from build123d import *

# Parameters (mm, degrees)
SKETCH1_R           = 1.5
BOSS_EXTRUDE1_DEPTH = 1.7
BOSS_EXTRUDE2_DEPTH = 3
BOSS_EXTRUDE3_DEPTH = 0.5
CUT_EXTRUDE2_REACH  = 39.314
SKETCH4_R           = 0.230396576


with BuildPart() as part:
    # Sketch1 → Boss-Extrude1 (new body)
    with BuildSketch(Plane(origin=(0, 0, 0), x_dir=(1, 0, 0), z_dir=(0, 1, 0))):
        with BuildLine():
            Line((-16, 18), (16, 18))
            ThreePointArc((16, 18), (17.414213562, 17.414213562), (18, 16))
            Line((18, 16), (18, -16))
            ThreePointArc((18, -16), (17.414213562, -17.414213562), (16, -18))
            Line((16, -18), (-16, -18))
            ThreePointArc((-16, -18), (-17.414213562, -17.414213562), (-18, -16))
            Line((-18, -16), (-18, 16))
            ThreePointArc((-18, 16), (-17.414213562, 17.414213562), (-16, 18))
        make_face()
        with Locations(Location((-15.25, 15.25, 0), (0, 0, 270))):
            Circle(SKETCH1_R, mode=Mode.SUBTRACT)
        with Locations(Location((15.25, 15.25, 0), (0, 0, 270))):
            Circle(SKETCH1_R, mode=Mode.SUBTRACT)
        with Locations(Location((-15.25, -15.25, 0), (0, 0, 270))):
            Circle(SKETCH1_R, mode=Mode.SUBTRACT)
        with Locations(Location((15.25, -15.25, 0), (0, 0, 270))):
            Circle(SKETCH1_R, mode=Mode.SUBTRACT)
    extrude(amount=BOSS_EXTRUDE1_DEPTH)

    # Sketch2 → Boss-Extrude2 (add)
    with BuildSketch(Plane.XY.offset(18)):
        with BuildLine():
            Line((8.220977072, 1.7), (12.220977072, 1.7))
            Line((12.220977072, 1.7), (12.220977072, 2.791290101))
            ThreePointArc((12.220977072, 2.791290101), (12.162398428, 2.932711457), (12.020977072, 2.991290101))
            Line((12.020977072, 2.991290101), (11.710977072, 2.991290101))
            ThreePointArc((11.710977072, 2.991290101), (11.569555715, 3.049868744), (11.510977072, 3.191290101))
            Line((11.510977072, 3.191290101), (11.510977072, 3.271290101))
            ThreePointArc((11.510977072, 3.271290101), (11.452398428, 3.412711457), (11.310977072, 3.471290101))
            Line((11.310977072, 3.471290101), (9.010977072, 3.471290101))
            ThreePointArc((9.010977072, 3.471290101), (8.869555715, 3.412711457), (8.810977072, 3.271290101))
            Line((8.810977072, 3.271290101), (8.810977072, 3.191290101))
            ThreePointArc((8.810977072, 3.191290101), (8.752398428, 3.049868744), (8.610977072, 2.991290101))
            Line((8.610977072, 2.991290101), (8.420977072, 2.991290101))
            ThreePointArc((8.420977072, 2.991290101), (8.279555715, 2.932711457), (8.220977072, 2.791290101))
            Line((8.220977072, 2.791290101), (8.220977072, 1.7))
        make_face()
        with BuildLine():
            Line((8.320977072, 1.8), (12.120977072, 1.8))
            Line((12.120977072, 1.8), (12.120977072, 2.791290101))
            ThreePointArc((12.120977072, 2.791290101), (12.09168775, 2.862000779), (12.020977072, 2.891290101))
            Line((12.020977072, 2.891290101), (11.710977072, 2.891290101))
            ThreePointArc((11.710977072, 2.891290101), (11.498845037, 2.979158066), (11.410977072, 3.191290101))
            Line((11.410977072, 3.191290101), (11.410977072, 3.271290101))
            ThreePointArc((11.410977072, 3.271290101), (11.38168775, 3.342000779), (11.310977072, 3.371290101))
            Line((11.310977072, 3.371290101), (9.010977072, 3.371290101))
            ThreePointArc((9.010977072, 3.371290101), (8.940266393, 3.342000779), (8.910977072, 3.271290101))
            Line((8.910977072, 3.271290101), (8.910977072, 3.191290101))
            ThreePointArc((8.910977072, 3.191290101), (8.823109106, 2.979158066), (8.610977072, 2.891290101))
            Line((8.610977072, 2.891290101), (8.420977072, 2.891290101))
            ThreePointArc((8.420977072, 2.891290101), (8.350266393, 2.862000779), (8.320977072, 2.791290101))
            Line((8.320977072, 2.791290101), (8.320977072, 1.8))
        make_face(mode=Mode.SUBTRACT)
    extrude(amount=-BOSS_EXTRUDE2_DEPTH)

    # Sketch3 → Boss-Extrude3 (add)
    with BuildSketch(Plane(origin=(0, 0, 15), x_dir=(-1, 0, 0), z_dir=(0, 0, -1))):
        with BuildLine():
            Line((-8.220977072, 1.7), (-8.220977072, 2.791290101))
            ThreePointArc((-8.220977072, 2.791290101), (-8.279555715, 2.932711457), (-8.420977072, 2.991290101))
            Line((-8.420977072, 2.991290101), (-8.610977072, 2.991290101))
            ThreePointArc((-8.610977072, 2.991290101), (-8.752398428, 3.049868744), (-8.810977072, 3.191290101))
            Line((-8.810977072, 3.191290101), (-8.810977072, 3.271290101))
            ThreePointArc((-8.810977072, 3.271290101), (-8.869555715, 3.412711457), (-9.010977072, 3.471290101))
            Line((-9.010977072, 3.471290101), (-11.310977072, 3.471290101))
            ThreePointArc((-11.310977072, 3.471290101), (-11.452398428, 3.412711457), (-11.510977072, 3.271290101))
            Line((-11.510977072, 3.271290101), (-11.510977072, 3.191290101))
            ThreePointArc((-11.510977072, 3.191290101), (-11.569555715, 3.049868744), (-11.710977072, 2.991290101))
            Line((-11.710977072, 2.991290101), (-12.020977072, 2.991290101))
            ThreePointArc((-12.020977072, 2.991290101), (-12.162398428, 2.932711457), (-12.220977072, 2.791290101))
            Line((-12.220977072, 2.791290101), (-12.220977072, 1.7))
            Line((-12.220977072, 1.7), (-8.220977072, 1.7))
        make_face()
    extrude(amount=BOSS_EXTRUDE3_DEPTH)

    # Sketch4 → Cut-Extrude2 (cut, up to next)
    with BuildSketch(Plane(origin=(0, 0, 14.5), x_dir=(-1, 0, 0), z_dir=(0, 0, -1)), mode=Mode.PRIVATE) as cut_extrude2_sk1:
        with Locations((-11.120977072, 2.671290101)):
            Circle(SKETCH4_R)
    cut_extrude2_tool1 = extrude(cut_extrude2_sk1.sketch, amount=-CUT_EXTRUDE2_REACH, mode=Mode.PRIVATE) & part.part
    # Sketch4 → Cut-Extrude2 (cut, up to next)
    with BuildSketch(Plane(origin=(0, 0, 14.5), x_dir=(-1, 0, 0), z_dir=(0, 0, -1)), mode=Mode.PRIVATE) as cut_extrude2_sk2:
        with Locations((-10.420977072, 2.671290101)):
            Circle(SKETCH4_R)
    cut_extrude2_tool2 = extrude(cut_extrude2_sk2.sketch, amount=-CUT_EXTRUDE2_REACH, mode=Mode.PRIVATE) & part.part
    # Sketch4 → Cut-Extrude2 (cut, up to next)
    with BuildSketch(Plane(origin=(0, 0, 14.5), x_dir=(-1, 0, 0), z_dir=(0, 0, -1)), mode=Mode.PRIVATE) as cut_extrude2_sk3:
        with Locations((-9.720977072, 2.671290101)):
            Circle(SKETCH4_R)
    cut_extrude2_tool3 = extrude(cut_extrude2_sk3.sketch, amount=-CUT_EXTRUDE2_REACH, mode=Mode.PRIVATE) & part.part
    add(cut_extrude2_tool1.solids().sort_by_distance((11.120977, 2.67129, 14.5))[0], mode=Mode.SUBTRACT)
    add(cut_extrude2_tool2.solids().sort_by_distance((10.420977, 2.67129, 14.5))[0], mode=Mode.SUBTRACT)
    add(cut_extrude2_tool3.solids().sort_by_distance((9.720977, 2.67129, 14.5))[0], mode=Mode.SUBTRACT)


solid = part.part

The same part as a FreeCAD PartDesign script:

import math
import FreeCAD as App
import Part
import Sketcher

V = App.Vector

doc = App.newDocument("Part")
body = doc.addObject("PartDesign::Body", "Body")

sketch1 = body.newObject("Sketcher::SketchObject", "Sketch")
sketch1.AttachmentSupport = (doc.getObject("XZ_Plane"), [""])
sketch1.MapMode = "FlatFace"
sketch1.addGeometry(Part.LineSegment(V(16, -18, 0), V(-16, -18, 0)), False)
sketch1.addGeometry(Part.ArcOfCircle(Part.Circle(V(-16, -16, 0), V(0, 0, 1), 2), math.radians(-180), math.radians(-90)), False)
sketch1.addGeometry(Part.LineSegment(V(-18, -16, 0), V(-18, 16, 0)), False)
sketch1.addGeometry(Part.ArcOfCircle(Part.Circle(V(-16, 16, 0), V(0, 0, 1), 2), math.radians(90), math.radians(180)), False)
sketch1.addGeometry(Part.LineSegment(V(-16, 18, 0), V(16, 18, 0)), False)
sketch1.addGeometry(Part.ArcOfCircle(Part.Circle(V(16, 16, 0), V(0, 0, 1), 2), math.radians(0), math.radians(90)), False)
sketch1.addGeometry(Part.LineSegment(V(18, 16, 0), V(18, -16, 0)), False)
sketch1.addGeometry(Part.ArcOfCircle(Part.Circle(V(16, -16, 0), V(0, 0, 1), 2), math.radians(-90), math.radians(0)), False)
sketch1.addGeometry(Part.Circle(V(15.2, 15.2, 0), V(0, 0, 1), 1.5), False)
sketch1.addGeometry(Part.Circle(V(-15.2, 15.2, 0), V(0, 0, 1), 1.5), False)
sketch1.addGeometry(Part.Circle(V(15.2, -15.2, 0), V(0, 0, 1), 1.5), False)
sketch1.addGeometry(Part.Circle(V(-15.2, -15.2, 0), V(0, 0, 1), 1.5), False)
sketch1.addConstraint(Sketcher.Constraint("Tangent", 0, 2, 1, 2))
sketch1.addConstraint(Sketcher.Constraint("Tangent", 1, 1, 2, 1))
sketch1.addConstraint(Sketcher.Constraint("Tangent", 2, 2, 3, 2))
sketch1.addConstraint(Sketcher.Constraint("Tangent", 3, 1, 4, 1))
sketch1.addConstraint(Sketcher.Constraint("Tangent", 4, 2, 5, 2))
sketch1.addConstraint(Sketcher.Constraint("Tangent", 5, 1, 6, 1))
sketch1.addConstraint(Sketcher.Constraint("Tangent", 6, 2, 7, 2))
sketch1.addConstraint(Sketcher.Constraint("Tangent", 7, 1, 0, 1))
sketch1.addConstraint(Sketcher.Constraint("Horizontal", 0))
sketch1.addConstraint(Sketcher.Constraint("Vertical", 2))
sketch1.addConstraint(Sketcher.Constraint("Horizontal", 4))
sketch1.addConstraint(Sketcher.Constraint("Vertical", 6))
sketch1.addConstraint(Sketcher.Constraint("Equal", 1, 3))
sketch1.addConstraint(Sketcher.Constraint("Equal", 3, 5))
sketch1.addConstraint(Sketcher.Constraint("Equal", 5, 7))
sketch1.addConstraint(Sketcher.Constraint("Equal", 8, 9))
sketch1.addConstraint(Sketcher.Constraint("Equal", 9, 10))
sketch1.addConstraint(Sketcher.Constraint("Equal", 10, 11))
sketch1.addConstraint(Sketcher.Constraint("Symmetric", 1, 3, 5, 3, -1, 1))
sketch1.addConstraint(Sketcher.Constraint("Symmetric", 9, 3, 10, 3, -1, 1))
sketch1.addConstraint(Sketcher.Constraint("Symmetric", 8, 3, 11, 3, -1, 1))
sketch1.addConstraint(Sketcher.Constraint("Symmetric", 8, 3, 9, 3, -2))
sketch1.addConstraint(Sketcher.Constraint("Equal", 4, 2))
sketch1.addConstraint(Sketcher.Constraint("Diameter", 8, 3.0))
sketch1.addConstraint(Sketcher.Constraint("Radius", 1, 2.0))
sketch1.addConstraint(Sketcher.Constraint("DistanceX", 0, 2, 0, 1, 32.0))
sketch1.addConstraint(Sketcher.Constraint("DistanceX", 9, 3, 8, 3, 30.5))
sketch1.addConstraint(Sketcher.Constraint("DistanceY", 10, 3, 8, 3, 30.5))
pad1 = body.newObject("PartDesign::Pad", "Pad")
pad1.Profile = sketch1
pad1.Length = 1.7
pad1.Reversed = True

sketch2 = body.newObject("Sketcher::SketchObject", "Sketch001")
sketch2.AttachmentSupport = (doc.getObject("XY_Plane"), [""])
sketch2.MapMode = "FlatFace"
sketch2.AttachmentOffset = App.Placement(V(0, 0, 18), App.Rotation())
sketch2.addGeometry(Part.LineSegment(V(8.22, 1.7, 0), V(12.22, 1.7, 0)), False)
sketch2.addGeometry(Part.LineSegment(V(12.22, 1.7, 0), V(12.22, 2.79, 0)), False)
sketch2.addGeometry(Part.ArcOfCircle(Part.Circle(V(12.02, 2.79, 0), V(0, 0, 1), 0.2), math.radians(0), math.radians(90)), False)
sketch2.addGeometry(Part.LineSegment(V(12.02, 2.99, 0), V(11.71, 2.99, 0)), False)
sketch2.addGeometry(Part.ArcOfCircle(Part.Circle(V(11.71, 3.19, 0), V(0, 0, 1), 0.2), math.radians(180), math.radians(270)), False)
sketch2.addGeometry(Part.LineSegment(V(11.51, 3.19, 0), V(11.51, 3.27, 0)), False)
sketch2.addGeometry(Part.ArcOfCircle(Part.Circle(V(11.31, 3.27, 0), V(0, 0, 1), 0.2), math.radians(0), math.radians(90)), False)
sketch2.addGeometry(Part.LineSegment(V(11.31, 3.47, 0), V(9.01, 3.47, 0)), False)
sketch2.addGeometry(Part.ArcOfCircle(Part.Circle(V(9.01, 3.27, 0), V(0, 0, 1), 0.2), math.radians(90), math.radians(180)), False)
sketch2.addGeometry(Part.LineSegment(V(8.81, 3.27, 0), V(8.81, 3.19, 0)), False)
sketch2.addGeometry(Part.ArcOfCircle(Part.Circle(V(8.61, 3.19, 0), V(0, 0, 1), 0.2), math.radians(-90), math.radians(0)), False)
sketch2.addGeometry(Part.LineSegment(V(8.61, 2.99, 0), V(8.42, 2.99, 0)), False)
sketch2.addGeometry(Part.ArcOfCircle(Part.Circle(V(8.42, 2.79, 0), V(0, 0, 1), 0.2), math.radians(90), math.radians(180)), False)
sketch2.addGeometry(Part.LineSegment(V(8.22, 2.79, 0), V(8.22, 1.7, 0)), False)
sketch2.addGeometry(Part.LineSegment(V(12.12, 1.8, 0), V(8.32, 1.8, 0)), False)
sketch2.addGeometry(Part.LineSegment(V(8.32, 1.8, 0), V(8.32, 2.79, 0)), False)
sketch2.addGeometry(Part.ArcOfCircle(Part.Circle(V(8.42, 2.79, 0), V(0, 0, 1), 0.1), math.radians(90), math.radians(180)), False)
sketch2.addGeometry(Part.LineSegment(V(8.42, 2.89, 0), V(8.61, 2.89, 0)), False)
sketch2.addGeometry(Part.ArcOfCircle(Part.Circle(V(8.61, 3.19, 0), V(0, 0, 1), 0.3), math.radians(-90), math.radians(0)), False)
sketch2.addGeometry(Part.LineSegment(V(8.91, 3.19, 0), V(8.91, 3.27, 0)), False)
sketch2.addGeometry(Part.ArcOfCircle(Part.Circle(V(9.01, 3.27, 0), V(0, 0, 1), 0.1), math.radians(90), math.radians(180)), False)
sketch2.addGeometry(Part.LineSegment(V(9.01, 3.37, 0), V(11.31, 3.37, 0)), False)
sketch2.addGeometry(Part.ArcOfCircle(Part.Circle(V(11.31, 3.27, 0), V(0, 0, 1), 0.1), math.radians(0), math.radians(90)), False)
sketch2.addGeometry(Part.LineSegment(V(11.41, 3.27, 0), V(11.41, 3.19, 0)), False)
sketch2.addGeometry(Part.ArcOfCircle(Part.Circle(V(11.71, 3.19, 0), V(0, 0, 1), 0.3), math.radians(180), math.radians(270)), False)
sketch2.addGeometry(Part.LineSegment(V(11.71, 2.89, 0), V(12.02, 2.89, 0)), False)
sketch2.addGeometry(Part.ArcOfCircle(Part.Circle(V(12.02, 2.79, 0), V(0, 0, 1), 0.1), math.radians(0), math.radians(90)), False)
sketch2.addGeometry(Part.LineSegment(V(12.12, 2.79, 0), V(12.12, 1.8, 0)), False)
sketch2.addConstraint(Sketcher.Constraint("Coincident", 0, 2, 1, 1))
sketch2.addConstraint(Sketcher.Constraint("Tangent", 1, 2, 2, 1))
sketch2.addConstraint(Sketcher.Constraint("Tangent", 2, 2, 3, 1))
sketch2.addConstraint(Sketcher.Constraint("Tangent", 3, 2, 4, 2))
sketch2.addConstraint(Sketcher.Constraint("Tangent", 4, 1, 5, 1))
sketch2.addConstraint(Sketcher.Constraint("Tangent", 5, 2, 6, 1))
sketch2.addConstraint(Sketcher.Constraint("Tangent", 6, 2, 7, 1))
sketch2.addConstraint(Sketcher.Constraint("Tangent", 7, 2, 8, 1))
sketch2.addConstraint(Sketcher.Constraint("Tangent", 8, 2, 9, 1))
sketch2.addConstraint(Sketcher.Constraint("Tangent", 9, 2, 10, 2))
sketch2.addConstraint(Sketcher.Constraint("Tangent", 10, 1, 11, 1))
sketch2.addConstraint(Sketcher.Constraint("Tangent", 11, 2, 12, 1))
sketch2.addConstraint(Sketcher.Constraint("Tangent", 12, 2, 13, 1))
sketch2.addConstraint(Sketcher.Constraint("Coincident", 13, 2, 0, 1))
sketch2.addConstraint(Sketcher.Constraint("Coincident", 14, 2, 15, 1))
sketch2.addConstraint(Sketcher.Constraint("Tangent", 15, 2, 16, 2))
sketch2.addConstraint(Sketcher.Constraint("Tangent", 16, 1, 17, 1))
sketch2.addConstraint(Sketcher.Constraint("Tangent", 17, 2, 18, 1))
sketch2.addConstraint(Sketcher.Constraint("Tangent", 18, 2, 19, 1))
sketch2.addConstraint(Sketcher.Constraint("Tangent", 19, 2, 20, 2))
sketch2.addConstraint(Sketcher.Constraint("Tangent", 20, 1, 21, 1))
sketch2.addConstraint(Sketcher.Constraint("Tangent", 21, 2, 22, 2))
sketch2.addConstraint(Sketcher.Constraint("Tangent", 22, 1, 23, 1))
sketch2.addConstraint(Sketcher.Constraint("Tangent", 23, 2, 24, 1))
sketch2.addConstraint(Sketcher.Constraint("Tangent", 24, 2, 25, 1))
sketch2.addConstraint(Sketcher.Constraint("Tangent", 25, 2, 26, 2))
sketch2.addConstraint(Sketcher.Constraint("Tangent", 26, 1, 27, 1))
sketch2.addConstraint(Sketcher.Constraint("Coincident", 27, 2, 14, 1))
sketch2.addConstraint(Sketcher.Constraint("Horizontal", 0))
sketch2.addConstraint(Sketcher.Constraint("Vertical", 1))
sketch2.addConstraint(Sketcher.Constraint("Horizontal", 3))
sketch2.addConstraint(Sketcher.Constraint("Vertical", 5))
sketch2.addConstraint(Sketcher.Constraint("Horizontal", 7))
sketch2.addConstraint(Sketcher.Constraint("Vertical", 9))
sketch2.addConstraint(Sketcher.Constraint("Horizontal", 11))
sketch2.addConstraint(Sketcher.Constraint("Vertical", 13))
sketch2.addConstraint(Sketcher.Constraint("Horizontal", 14))
sketch2.addConstraint(Sketcher.Constraint("Vertical", 15))
sketch2.addConstraint(Sketcher.Constraint("Horizontal", 17))
sketch2.addConstraint(Sketcher.Constraint("Vertical", 19))
sketch2.addConstraint(Sketcher.Constraint("Horizontal", 21))
sketch2.addConstraint(Sketcher.Constraint("Vertical", 23))
sketch2.addConstraint(Sketcher.Constraint("Horizontal", 25))
sketch2.addConstraint(Sketcher.Constraint("Vertical", 27))
sketch2.addConstraint(Sketcher.Constraint("Coincident", 16, 3, 12, 3))
sketch2.addConstraint(Sketcher.Constraint("Coincident", 18, 3, 10, 3))
sketch2.addConstraint(Sketcher.Constraint("Coincident", 20, 3, 8, 3))
sketch2.addConstraint(Sketcher.Constraint("Coincident", 22, 3, 6, 3))
sketch2.addConstraint(Sketcher.Constraint("Coincident", 24, 3, 4, 3))
sketch2.addConstraint(Sketcher.Constraint("Coincident", 26, 3, 2, 3))
sketch2.addConstraint(Sketcher.Constraint("Equal", 2, 4))
sketch2.addConstraint(Sketcher.Constraint("Equal", 4, 6))
sketch2.addConstraint(Sketcher.Constraint("Equal", 6, 8))
sketch2.addConstraint(Sketcher.Constraint("Equal", 8, 10))
sketch2.addConstraint(Sketcher.Constraint("Equal", 10, 12))
sketch2.addConstraint(Sketcher.Constraint("Horizontal", 4, 3, 10, 3))
sketch2.addConstraint(Sketcher.Constraint("Radius", 2, 0.2))
sketch2.addConstraint(Sketcher.Constraint("Radius", 16, 0.1))
sketch2.addConstraint(Sketcher.Constraint("DistanceX", 0, 1, 0, 2, 4.0))
sketch2.addConstraint(Sketcher.Constraint("DistanceX", 7, 2, 7, 1, 2.3))
sketch2.addConstraint(Sketcher.Constraint("DistanceX", 3, 2, 3, 1, 0.31))
sketch2.addConstraint(Sketcher.Constraint("DistanceY", 5, 1, 5, 2, 0.08))
sketch2.addConstraint(Sketcher.Constraint("DistanceY", -1, 1, 0, 2, 1.7))
sketch2.addConstraint(Sketcher.Constraint("DistanceY", -1, 1, 14, 2, 1.8))
sketch2.addConstraint(Sketcher.Constraint("DistanceY", 1, 1, 1, 2, 1.09129))
sketch2.addConstraint(Sketcher.Constraint("DistanceX", -1, 1, 2, 3, 12.020977))
pad2 = body.newObject("PartDesign::Pad", "Pad001")
pad2.Profile = sketch2
pad2.Length = 3
pad2.Reversed = True

sketch3 = body.newObject("Sketcher::SketchObject", "Sketch002")
sketch3.AttachmentSupport = (doc.getObject("XY_Plane"), [""])
sketch3.MapMode = "FlatFace"
sketch3.AttachmentOffset = App.Placement(V(0, 0, 15), App.Rotation())
sketch3.addGeometry(Part.LineSegment(V(8.22, 1.7, 0), V(8.22, 2.79, 0)), False)
sketch3.addGeometry(Part.ArcOfCircle(Part.Circle(V(8.42, 2.79, 0), V(0, 0, 1), 0.2), math.radians(90), math.radians(180)), False)
sketch3.addGeometry(Part.LineSegment(V(8.42, 2.99, 0), V(8.61, 2.99, 0)), False)
sketch3.addGeometry(Part.ArcOfCircle(Part.Circle(V(8.61, 3.19, 0), V(0, 0, 1), 0.2), math.radians(-90), math.radians(0)), False)
sketch3.addGeometry(Part.LineSegment(V(8.81, 3.19, 0), V(8.81, 3.27, 0)), False)
sketch3.addGeometry(Part.ArcOfCircle(Part.Circle(V(9.01, 3.27, 0), V(0, 0, 1), 0.2), math.radians(90), math.radians(180)), False)
sketch3.addGeometry(Part.LineSegment(V(9.01, 3.47, 0), V(11.31, 3.47, 0)), False)
sketch3.addGeometry(Part.ArcOfCircle(Part.Circle(V(11.31, 3.27, 0), V(0, 0, 1), 0.2), math.radians(0), math.radians(90)), False)
sketch3.addGeometry(Part.LineSegment(V(11.51, 3.27, 0), V(11.51, 3.19, 0)), False)
sketch3.addGeometry(Part.ArcOfCircle(Part.Circle(V(11.71, 3.19, 0), V(0, 0, 1), 0.2), math.radians(180), math.radians(270)), False)
sketch3.addGeometry(Part.LineSegment(V(11.71, 2.99, 0), V(12.02, 2.99, 0)), False)
sketch3.addGeometry(Part.ArcOfCircle(Part.Circle(V(12.02, 2.79, 0), V(0, 0, 1), 0.2), math.radians(0), math.radians(90)), False)
sketch3.addGeometry(Part.LineSegment(V(12.22, 2.79, 0), V(12.22, 1.7, 0)), False)
sketch3.addGeometry(Part.LineSegment(V(12.22, 1.7, 0), V(8.22, 1.7, 0)), False)
sketch3.addConstraint(Sketcher.Constraint("Tangent", 0, 2, 1, 2))
sketch3.addConstraint(Sketcher.Constraint("Tangent", 1, 1, 2, 1))
sketch3.addConstraint(Sketcher.Constraint("Tangent", 2, 2, 3, 1))
sketch3.addConstraint(Sketcher.Constraint("Tangent", 3, 2, 4, 1))
sketch3.addConstraint(Sketcher.Constraint("Tangent", 4, 2, 5, 2))
sketch3.addConstraint(Sketcher.Constraint("Tangent", 5, 1, 6, 1))
sketch3.addConstraint(Sketcher.Constraint("Tangent", 6, 2, 7, 2))
sketch3.addConstraint(Sketcher.Constraint("Tangent", 7, 1, 8, 1))
sketch3.addConstraint(Sketcher.Constraint("Tangent", 8, 2, 9, 1))
sketch3.addConstraint(Sketcher.Constraint("Tangent", 9, 2, 10, 1))
sketch3.addConstraint(Sketcher.Constraint("Tangent", 10, 2, 11, 2))
sketch3.addConstraint(Sketcher.Constraint("Tangent", 11, 1, 12, 1))
sketch3.addConstraint(Sketcher.Constraint("Coincident", 12, 2, 13, 1))
sketch3.addConstraint(Sketcher.Constraint("Coincident", 13, 2, 0, 1))
sketch3.addConstraint(Sketcher.Constraint("Vertical", 0))
sketch3.addConstraint(Sketcher.Constraint("Horizontal", 2))
sketch3.addConstraint(Sketcher.Constraint("Vertical", 4))
sketch3.addConstraint(Sketcher.Constraint("Horizontal", 6))
sketch3.addConstraint(Sketcher.Constraint("Vertical", 8))
sketch3.addConstraint(Sketcher.Constraint("Horizontal", 10))
sketch3.addConstraint(Sketcher.Constraint("Vertical", 12))
sketch3.addConstraint(Sketcher.Constraint("Horizontal", 13))
sketch3.addConstraint(Sketcher.Constraint("Equal", 1, 3))
sketch3.addConstraint(Sketcher.Constraint("Equal", 3, 5))
sketch3.addConstraint(Sketcher.Constraint("Equal", 5, 7))
sketch3.addConstraint(Sketcher.Constraint("Equal", 7, 9))
sketch3.addConstraint(Sketcher.Constraint("Equal", 9, 11))
sketch3.addConstraint(Sketcher.Constraint("Horizontal", 3, 3, 9, 3))
sketch3.addConstraint(Sketcher.Constraint("Radius", 1, 0.2))
sketch3.addConstraint(Sketcher.Constraint("DistanceX", 13, 2, 13, 1, 4.0))
sketch3.addConstraint(Sketcher.Constraint("DistanceX", 6, 1, 6, 2, 2.3))
sketch3.addConstraint(Sketcher.Constraint("DistanceX", 2, 1, 2, 2, 0.19))
sketch3.addConstraint(Sketcher.Constraint("DistanceY", 4, 1, 4, 2, 0.08))
sketch3.addConstraint(Sketcher.Constraint("DistanceY", -1, 1, 12, 2, 1.7))
sketch3.addConstraint(Sketcher.Constraint("DistanceY", 0, 1, 0, 2, 1.09129))
sketch3.addConstraint(Sketcher.Constraint("DistanceX", -1, 1, 1, 3, 8.420977))
pad3 = body.newObject("PartDesign::Pad", "Pad002")
pad3.Profile = sketch3
pad3.Length = 0.5
pad3.Reversed = True

sketch4 = body.newObject("Sketcher::SketchObject", "Sketch003")
sketch4.AttachmentSupport = (doc.getObject("XY_Plane"), [""])
sketch4.MapMode = "FlatFace"
sketch4.AttachmentOffset = App.Placement(V(0, 0, 14.5), App.Rotation())
sketch4.addGeometry(Part.Circle(V(11.12, 2.67, 0), V(0, 0, 1), 0.23), False)
sketch4.addConstraint(Sketcher.Constraint("Diameter", 0, 0.460793))
sketch4.addConstraint(Sketcher.Constraint("DistanceY", -1, 1, 0, 3, 2.67129))
sketch4.addConstraint(Sketcher.Constraint("DistanceX", -1, 1, 0, 3, 11.120977))
pocket1 = body.newObject("PartDesign::Pocket", "Pocket")
pocket1.Profile = sketch4
pocket1.Type = "UpToFirst"
pocket1.Reversed = True

sketch5 = body.newObject("Sketcher::SketchObject", "Sketch004")
sketch5.AttachmentSupport = (doc.getObject("XY_Plane"), [""])
sketch5.MapMode = "FlatFace"
sketch5.AttachmentOffset = App.Placement(V(0, 0, 14.5), App.Rotation())
sketch5.addGeometry(Part.Circle(V(10.42, 2.67, 0), V(0, 0, 1), 0.23), False)
sketch5.addConstraint(Sketcher.Constraint("Diameter", 0, 0.460793))
sketch5.addConstraint(Sketcher.Constraint("DistanceY", -1, 1, 0, 3, 2.67129))
sketch5.addConstraint(Sketcher.Constraint("DistanceX", -1, 1, 0, 3, 10.420977))
pocket2 = body.newObject("PartDesign::Pocket", "Pocket001")
pocket2.Profile = sketch5
pocket2.Type = "UpToFirst"
pocket2.Reversed = True

sketch6 = body.newObject("Sketcher::SketchObject", "Sketch005")
sketch6.AttachmentSupport = (doc.getObject("XY_Plane"), [""])
sketch6.MapMode = "FlatFace"
sketch6.AttachmentOffset = App.Placement(V(0, 0, 14.5), App.Rotation())
sketch6.addGeometry(Part.Circle(V(9.72, 2.67, 0), V(0, 0, 1), 0.23), False)
sketch6.addConstraint(Sketcher.Constraint("Diameter", 0, 0.460793))
sketch6.addConstraint(Sketcher.Constraint("DistanceY", -1, 1, 0, 3, 2.67129))
sketch6.addConstraint(Sketcher.Constraint("DistanceX", -1, 1, 0, 3, 9.720977))
pocket3 = body.newObject("PartDesign::Pocket", "Pocket002")
pocket3.Profile = sketch6
pocket3.Type = "UpToFirst"
pocket3.Reversed = True

doc.recompute()
